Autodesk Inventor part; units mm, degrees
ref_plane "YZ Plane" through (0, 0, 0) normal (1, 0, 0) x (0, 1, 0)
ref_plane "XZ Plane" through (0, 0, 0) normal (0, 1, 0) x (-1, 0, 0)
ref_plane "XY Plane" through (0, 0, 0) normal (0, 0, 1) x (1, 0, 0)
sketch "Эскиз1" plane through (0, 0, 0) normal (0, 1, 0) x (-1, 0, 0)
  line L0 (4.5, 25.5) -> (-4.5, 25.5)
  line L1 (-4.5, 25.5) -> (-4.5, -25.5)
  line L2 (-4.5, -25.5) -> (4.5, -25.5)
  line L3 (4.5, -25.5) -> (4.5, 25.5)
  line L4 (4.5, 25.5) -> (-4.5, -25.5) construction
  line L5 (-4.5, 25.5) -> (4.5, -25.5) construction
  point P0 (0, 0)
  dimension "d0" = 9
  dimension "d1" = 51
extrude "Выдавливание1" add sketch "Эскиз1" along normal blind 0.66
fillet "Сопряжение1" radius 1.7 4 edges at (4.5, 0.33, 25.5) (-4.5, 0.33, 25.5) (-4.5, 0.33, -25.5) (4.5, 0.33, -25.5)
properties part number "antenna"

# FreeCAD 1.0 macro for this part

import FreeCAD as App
import Part
import Sketcher


def edges_at(feature, points):
    """Names of the edges that pass closest to the given points."""
    edges = feature.Shape.Edges
    near = lambda p: min(range(len(edges)), key=lambda i: edges[i].distToShape(Part.Vertex(*p))[0])
    return sorted({f"Edge{near(p) + 1}" for p in points})

doc = App.newDocument("Part")
body = doc.addObject("PartDesign::Body", "Body")

# Sketch on XZ plane
sketch1 = doc.addObject("Sketcher::SketchObject", "Sketch")
body.addObject(sketch1)
sketch1.AttachmentSupport = (doc.XZ_Plane, [""])
sketch1.MapMode = "FlatFace"
sketch1.addGeometry([
    Part.LineSegment(App.Vector(-4, -26, 0), App.Vector(-4, 26, 0)),
    Part.LineSegment(App.Vector(-4, 26, 0), App.Vector(4, 26, 0)),
    Part.LineSegment(App.Vector(4, 26, 0), App.Vector(4, -26, 0)),
    Part.LineSegment(App.Vector(4, -26, 0), App.Vector(-4, -26, 0)),
], False)
sketch1.addConstraint([
    Sketcher.Constraint("Coincident", 0, 2, 1, 1),
    Sketcher.Constraint("Coincident", 1, 2, 2, 1),
    Sketcher.Constraint("Coincident", 2, 2, 3, 1),
    Sketcher.Constraint("Coincident", 3, 2, 0, 1),
    Sketcher.Constraint("Vertical", 0),
    Sketcher.Constraint("Horizontal", 1),
    Sketcher.Constraint("Vertical", 2),
    Sketcher.Constraint("Horizontal", 3),
    Sketcher.Constraint("Symmetric", 0, 2, 2, 2, -1, 1),
    Sketcher.Constraint("DistanceX", 1, 1, 1, 2, 9.0),
    Sketcher.Constraint("DistanceY", 0, 1, 0, 2, 51.0),
])
pad1 = doc.addObject("PartDesign::Pad", "Pad")
body.addObject(pad1)
pad1.Profile = sketch1
pad1.Length = 0.66
pad1.Reversed = True
doc.recompute()

fillet = doc.addObject("PartDesign::Fillet", "Fillet")
body.addObject(fillet)
fillet.Base = (pad1, edges_at(pad1, [
    (4.5, 0.33, 25.5),
    (-4.5, 0.33, 25.5),
    (-4.5, 0.33, -25.5),
    (4.5, 0.33, -25.5),
]))
fillet.Radius = 1.7

doc.recompute()
